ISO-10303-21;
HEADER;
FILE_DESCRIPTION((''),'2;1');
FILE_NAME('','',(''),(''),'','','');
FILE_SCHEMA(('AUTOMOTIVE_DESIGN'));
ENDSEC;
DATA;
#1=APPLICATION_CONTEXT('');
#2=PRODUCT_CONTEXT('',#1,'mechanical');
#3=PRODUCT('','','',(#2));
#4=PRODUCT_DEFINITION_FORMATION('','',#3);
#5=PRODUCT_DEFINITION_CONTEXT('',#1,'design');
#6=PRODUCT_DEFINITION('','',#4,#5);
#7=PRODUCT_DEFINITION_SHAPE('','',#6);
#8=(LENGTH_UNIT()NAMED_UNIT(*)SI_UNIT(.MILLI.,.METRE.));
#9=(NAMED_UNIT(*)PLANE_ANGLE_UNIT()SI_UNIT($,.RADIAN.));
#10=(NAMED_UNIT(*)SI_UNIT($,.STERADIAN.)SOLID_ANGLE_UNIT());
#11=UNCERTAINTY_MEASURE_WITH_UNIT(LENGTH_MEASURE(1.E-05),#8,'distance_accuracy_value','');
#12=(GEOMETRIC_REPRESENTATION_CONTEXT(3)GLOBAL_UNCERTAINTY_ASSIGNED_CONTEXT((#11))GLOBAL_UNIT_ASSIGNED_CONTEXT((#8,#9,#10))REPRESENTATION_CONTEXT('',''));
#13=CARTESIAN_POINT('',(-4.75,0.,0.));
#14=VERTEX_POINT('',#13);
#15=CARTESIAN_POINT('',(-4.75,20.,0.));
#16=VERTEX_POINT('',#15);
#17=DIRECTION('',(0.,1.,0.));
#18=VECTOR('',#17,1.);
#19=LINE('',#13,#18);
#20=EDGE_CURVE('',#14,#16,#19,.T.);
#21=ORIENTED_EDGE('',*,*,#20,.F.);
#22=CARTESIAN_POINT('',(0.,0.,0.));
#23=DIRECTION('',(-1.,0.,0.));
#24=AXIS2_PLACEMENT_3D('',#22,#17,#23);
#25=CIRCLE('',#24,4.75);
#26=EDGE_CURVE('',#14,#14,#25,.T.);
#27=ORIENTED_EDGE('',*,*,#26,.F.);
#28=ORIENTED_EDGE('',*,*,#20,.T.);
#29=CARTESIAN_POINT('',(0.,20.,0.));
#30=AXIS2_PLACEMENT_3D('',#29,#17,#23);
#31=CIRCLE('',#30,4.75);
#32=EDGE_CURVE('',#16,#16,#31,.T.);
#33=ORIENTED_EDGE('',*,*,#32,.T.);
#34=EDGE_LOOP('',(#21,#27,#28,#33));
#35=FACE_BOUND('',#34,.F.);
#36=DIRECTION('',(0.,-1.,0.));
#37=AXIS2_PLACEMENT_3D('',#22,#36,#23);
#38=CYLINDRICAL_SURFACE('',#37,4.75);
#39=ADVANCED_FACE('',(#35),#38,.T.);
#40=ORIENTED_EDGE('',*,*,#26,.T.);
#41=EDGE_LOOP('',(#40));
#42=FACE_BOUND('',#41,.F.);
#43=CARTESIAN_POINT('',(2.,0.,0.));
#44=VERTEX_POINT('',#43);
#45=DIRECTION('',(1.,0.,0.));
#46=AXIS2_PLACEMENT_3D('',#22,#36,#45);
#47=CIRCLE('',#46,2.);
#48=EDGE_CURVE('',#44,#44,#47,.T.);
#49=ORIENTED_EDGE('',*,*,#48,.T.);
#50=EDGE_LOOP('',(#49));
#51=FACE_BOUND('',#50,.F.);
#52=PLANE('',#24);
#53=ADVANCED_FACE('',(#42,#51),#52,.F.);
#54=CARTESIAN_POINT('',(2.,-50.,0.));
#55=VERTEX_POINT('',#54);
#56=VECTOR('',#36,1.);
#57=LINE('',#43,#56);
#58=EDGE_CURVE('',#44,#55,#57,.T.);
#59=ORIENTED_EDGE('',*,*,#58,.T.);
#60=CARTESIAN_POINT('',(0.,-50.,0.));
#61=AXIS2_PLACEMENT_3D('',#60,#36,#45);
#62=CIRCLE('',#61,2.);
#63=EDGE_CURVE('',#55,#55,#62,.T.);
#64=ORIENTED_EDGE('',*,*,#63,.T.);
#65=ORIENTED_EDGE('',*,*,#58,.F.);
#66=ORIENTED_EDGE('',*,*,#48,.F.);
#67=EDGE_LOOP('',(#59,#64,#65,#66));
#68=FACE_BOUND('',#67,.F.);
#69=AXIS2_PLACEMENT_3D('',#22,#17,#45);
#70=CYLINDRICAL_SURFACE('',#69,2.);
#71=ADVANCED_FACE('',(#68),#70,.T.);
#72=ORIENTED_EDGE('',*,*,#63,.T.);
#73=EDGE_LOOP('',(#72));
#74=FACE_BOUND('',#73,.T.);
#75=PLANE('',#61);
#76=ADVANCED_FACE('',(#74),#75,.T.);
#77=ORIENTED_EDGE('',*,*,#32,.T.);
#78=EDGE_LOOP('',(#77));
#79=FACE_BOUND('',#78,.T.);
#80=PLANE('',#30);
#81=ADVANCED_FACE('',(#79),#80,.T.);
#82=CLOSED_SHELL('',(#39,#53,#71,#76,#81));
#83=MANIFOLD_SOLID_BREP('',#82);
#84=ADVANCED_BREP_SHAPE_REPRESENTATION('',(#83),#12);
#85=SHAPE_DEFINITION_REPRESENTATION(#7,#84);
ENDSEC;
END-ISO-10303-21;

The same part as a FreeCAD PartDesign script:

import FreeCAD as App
import Part
import Sketcher

V = App.Vector
Q = App.Units.Quantity

doc = App.newDocument("Part")
body = doc.addObject("PartDesign::Body", "Body")

# Sketch on XZ plane
sketch1 = doc.addObject("Sketcher::SketchObject", "Sketch")
body.addObject(sketch1)
sketch1.AttachmentSupport = (doc.XZ_Plane, [""])
sketch1.MapMode = "FlatFace"
sketch1.addGeometry(Part.Circle(V(0, 0, 0), V(0, 0, 1), 4.75), False)
sketch1.addConstraint(Sketcher.Constraint("Coincident", 0, 3, -1, 1))
sketch1.addConstraint(Sketcher.Constraint("Diameter", 0, Q("9.5 mm")))
pad1 = doc.addObject("PartDesign::Pad", "Pad")
body.addObject(pad1)
pad1.Profile = sketch1
pad1.Length = 20
pad1.Reversed = True

# Sketch on XZ plane
sketch2 = doc.addObject("Sketcher::SketchObject", "Sketch001")
body.addObject(sketch2)
sketch2.AttachmentSupport = (doc.XZ_Plane, [""])
sketch2.MapMode = "FlatFace"
sketch2.addGeometry(Part.Circle(V(0, 0, 0), V(0, 0, 1), 2), False)
sketch2.addConstraint(Sketcher.Constraint("Coincident", 0, 3, -1, 1))
sketch2.addConstraint(Sketcher.Constraint("Diameter", 0, Q("4 mm")))
pad2 = doc.addObject("PartDesign::Pad", "Pad001")
body.addObject(pad2)
pad2.Profile = sketch2
pad2.Length = 50

doc.recompute()
